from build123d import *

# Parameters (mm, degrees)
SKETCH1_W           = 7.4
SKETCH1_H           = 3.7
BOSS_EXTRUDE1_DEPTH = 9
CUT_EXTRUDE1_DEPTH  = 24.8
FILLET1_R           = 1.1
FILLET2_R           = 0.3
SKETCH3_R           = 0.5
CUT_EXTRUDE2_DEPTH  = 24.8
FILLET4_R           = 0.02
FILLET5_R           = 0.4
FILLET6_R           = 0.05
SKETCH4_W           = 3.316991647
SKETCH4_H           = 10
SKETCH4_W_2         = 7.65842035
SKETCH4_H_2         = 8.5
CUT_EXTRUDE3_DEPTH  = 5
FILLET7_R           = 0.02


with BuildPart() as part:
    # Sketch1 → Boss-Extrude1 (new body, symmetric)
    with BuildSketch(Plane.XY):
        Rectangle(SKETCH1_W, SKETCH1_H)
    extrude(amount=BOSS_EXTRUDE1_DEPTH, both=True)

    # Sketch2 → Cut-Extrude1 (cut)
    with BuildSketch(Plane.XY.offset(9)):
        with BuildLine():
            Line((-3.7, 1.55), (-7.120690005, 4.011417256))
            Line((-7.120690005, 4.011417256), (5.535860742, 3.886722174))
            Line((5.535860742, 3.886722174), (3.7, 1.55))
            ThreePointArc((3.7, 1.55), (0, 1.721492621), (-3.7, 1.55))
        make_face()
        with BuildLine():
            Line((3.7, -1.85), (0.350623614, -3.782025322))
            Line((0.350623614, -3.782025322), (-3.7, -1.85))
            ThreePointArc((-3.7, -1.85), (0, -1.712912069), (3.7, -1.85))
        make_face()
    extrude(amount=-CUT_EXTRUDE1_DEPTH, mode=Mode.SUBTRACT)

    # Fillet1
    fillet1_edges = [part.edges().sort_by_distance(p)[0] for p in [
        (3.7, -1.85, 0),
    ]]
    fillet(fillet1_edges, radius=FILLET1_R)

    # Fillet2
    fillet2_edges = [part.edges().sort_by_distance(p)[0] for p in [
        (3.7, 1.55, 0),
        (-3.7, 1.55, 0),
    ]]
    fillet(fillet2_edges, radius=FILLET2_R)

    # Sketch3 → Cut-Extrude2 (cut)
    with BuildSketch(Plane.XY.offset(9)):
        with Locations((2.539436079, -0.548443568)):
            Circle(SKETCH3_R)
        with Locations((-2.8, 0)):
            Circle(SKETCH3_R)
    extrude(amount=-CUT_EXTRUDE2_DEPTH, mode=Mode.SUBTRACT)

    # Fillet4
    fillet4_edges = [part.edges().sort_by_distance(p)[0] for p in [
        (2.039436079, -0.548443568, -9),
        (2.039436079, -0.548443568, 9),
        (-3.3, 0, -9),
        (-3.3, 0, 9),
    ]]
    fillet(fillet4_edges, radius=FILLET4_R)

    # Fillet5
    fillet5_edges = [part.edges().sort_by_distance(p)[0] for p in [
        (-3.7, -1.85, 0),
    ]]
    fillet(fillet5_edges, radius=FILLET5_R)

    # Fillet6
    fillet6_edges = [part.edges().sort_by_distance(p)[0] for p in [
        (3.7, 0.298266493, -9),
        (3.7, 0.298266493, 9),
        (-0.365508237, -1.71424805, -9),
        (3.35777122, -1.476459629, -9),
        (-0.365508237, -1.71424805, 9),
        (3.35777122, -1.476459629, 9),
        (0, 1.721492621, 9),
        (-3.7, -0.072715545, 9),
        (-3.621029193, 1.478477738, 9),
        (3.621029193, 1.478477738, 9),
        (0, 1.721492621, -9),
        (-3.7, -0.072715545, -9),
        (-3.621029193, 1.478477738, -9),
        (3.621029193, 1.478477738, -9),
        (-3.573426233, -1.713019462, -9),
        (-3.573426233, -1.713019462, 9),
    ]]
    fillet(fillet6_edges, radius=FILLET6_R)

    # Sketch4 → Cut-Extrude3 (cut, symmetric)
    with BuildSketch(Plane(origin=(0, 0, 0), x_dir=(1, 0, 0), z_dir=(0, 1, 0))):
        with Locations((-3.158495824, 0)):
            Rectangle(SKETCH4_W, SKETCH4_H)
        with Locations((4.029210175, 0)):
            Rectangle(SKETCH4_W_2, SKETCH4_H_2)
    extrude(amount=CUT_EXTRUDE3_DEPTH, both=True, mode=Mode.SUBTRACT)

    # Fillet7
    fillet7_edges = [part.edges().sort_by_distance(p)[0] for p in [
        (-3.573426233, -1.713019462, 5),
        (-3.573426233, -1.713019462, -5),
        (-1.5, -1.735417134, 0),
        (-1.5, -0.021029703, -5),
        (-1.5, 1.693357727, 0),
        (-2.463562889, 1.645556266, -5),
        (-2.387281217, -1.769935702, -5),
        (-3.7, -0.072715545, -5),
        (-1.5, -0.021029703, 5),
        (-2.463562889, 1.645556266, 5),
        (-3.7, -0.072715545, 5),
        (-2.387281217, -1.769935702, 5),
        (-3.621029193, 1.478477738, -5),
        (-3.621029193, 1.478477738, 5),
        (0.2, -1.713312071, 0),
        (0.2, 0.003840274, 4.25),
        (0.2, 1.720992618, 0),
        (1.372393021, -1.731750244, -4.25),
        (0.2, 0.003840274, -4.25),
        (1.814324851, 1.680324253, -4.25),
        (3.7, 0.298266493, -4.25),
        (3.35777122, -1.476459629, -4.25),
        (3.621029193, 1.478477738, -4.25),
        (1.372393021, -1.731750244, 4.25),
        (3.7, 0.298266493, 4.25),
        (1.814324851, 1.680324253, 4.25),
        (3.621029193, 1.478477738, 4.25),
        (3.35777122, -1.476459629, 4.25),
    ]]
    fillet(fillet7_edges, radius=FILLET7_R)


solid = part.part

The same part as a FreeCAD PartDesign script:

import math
import FreeCAD as App
import Part
import Sketcher

V = App.Vector


def edges_at(feature, points):
    """Names of the edges that pass closest to the given points."""
    edges = feature.Shape.Edges
    near = lambda p: min(range(len(edges)), key=lambda i: edges[i].distToShape(Part.Vertex(*p))[0])
    return sorted({f"Edge{near(p) + 1}" for p in points})


def add_polygon(sketch, points):
    """Adds a closed chain of lines whose ends are joined by coincident constraints."""
    first, n = sketch.GeometryCount, len(points)
    for a, b in zip(points, points[1:] + points[:1]):
        sketch.addGeometry(Part.LineSegment(App.Vector(*a, 0), App.Vector(*b, 0)), False)
    for i in range(n):
        sketch.addConstraint(Sketcher.Constraint("Coincident", first + i, 2, first + (i + 1) % n, 1))

doc = App.newDocument("Part")
body = doc.addObject("PartDesign::Body", "Body")

# Sketch on XY plane
sketch1 = doc.addObject("Sketcher::SketchObject", "Sketch")
body.addObject(sketch1)
sketch1.AttachmentSupport = (doc.XY_Plane, [""])
sketch1.MapMode = "FlatFace"
add_polygon(sketch1, [(-3.7, 1.9), (-3.7, -1.9), (3.7, -1.9), (3.7, 1.9)])  # lines 0-3
sketch1.addConstraint([
    Sketcher.Constraint("Vertical", 0),
    Sketcher.Constraint("Horizontal", 1),
    Sketcher.Constraint("Vertical", 2),
    Sketcher.Constraint("Horizontal", 3),
    Sketcher.Constraint("Symmetric", 0, 2, 2, 2, -1, 1),
    Sketcher.Constraint("DistanceX", 1, 1, 1, 2, 7.4),
    Sketcher.Constraint("DistanceY", 0, 2, 0, 1, 3.7),
])
pad1 = doc.addObject("PartDesign::Pad", "Pad")
body.addObject(pad1)
pad1.Profile = sketch1
pad1.Length = 18
pad1.Midplane = True

# Sketch on XY plane
sketch2 = doc.addObject("Sketcher::SketchObject", "Sketch001")
body.addObject(sketch2)
sketch2.AttachmentSupport = (doc.XY_Plane, [""])
sketch2.MapMode = "FlatFace"
sketch2.AttachmentOffset = App.Placement(V(0, 0, 9), App.Rotation())
sketch2.addGeometry([
    Part.LineSegment(V(-7.1, 4, 0), V(-3.7, 1.6, 0)),  # 0
    Part.ArcOfCircle(Part.Circle(V(0, -38.3, 0), V(0, 0, 1), 40), math.radians(84.69), math.radians(95.31)),  # 1
    Part.LineSegment(V(3.7, 1.6, 0), V(5.5, 3.9, 0)),  # 2
    Part.LineSegment(V(5.5, 3.9, 0), V(-7.1, 4, 0)),  # 3
    Part.LineSegment(V(0.4, -3.8, 0), V(3.7, -1.9, 0)),  # 4
    Part.ArcOfCircle(Part.Circle(V(0, -51.7, 0), V(0, 0, 1), 50), math.radians(85.76), math.radians(94.24)),  # 5
    Part.LineSegment(V(-3.7, -1.9, 0), V(0.4, -3.8, 0)),  # 6
], False)
sketch2.addConstraint([
    Sketcher.Constraint("Coincident", 0, 2, 1, 2),
    Sketcher.Constraint("Coincident", 1, 1, 2, 1),
    Sketcher.Constraint("Coincident", 2, 2, 3, 1),
    Sketcher.Constraint("Coincident", 3, 2, 0, 1),
    Sketcher.Constraint("Coincident", 4, 2, 5, 1),
    Sketcher.Constraint("Coincident", 5, 2, 6, 1),
    Sketcher.Constraint("Coincident", 6, 2, 4, 1),
    Sketcher.Constraint("Symmetric", 0, 2, 1, 1, -2),
    Sketcher.Constraint("Symmetric", 4, 2, 5, 2, -2),
    Sketcher.Constraint("Vertical", 1, 1, 4, 2),
    Sketcher.Constraint("Radius", 1, 40.0),
    Sketcher.Constraint("Radius", 5, 50.0),
    Sketcher.Constraint("DistanceX", 0, 2, -1, 1, 3.7),
    Sketcher.Constraint("DistanceY", 4, 2, 1, 1, 3.4),
    Sketcher.Constraint("DistanceY", -1, 1, 0, 2, 1.55),
    Sketcher.Constraint("Distance", 2, 2.971642),
    Sketcher.Constraint("Distance", 6, 4.487792),
    Sketcher.Constraint("DistanceX", -1, 1, 2, 2, 5.535861),
    Sketcher.Constraint("DistanceX", 3, 2, -1, 1, 7.12069),
    Sketcher.Constraint("DistanceY", 5, 3, 3, 2, 55.724329),
    Sketcher.Constraint("Distance", 4, 3.866658),
])
pocket1 = doc.addObject("PartDesign::Pocket", "Pocket")
body.addObject(pocket1)
pocket1.Profile = sketch2
pocket1.Length = 24.8
doc.recompute()

fillet = doc.addObject("PartDesign::Fillet", "Fillet")
body.addObject(fillet)
fillet.Base = (pocket1, edges_at(pocket1, [(3.7, -1.85, 0)]))
fillet.Radius = 1.1
doc.recompute()

fillet2 = doc.addObject("PartDesign::Fillet", "Fillet001")
body.addObject(fillet2)
fillet2.Base = (fillet, edges_at(fillet, [(3.7, 1.55, 0), (-3.7, 1.55, 0)]))
fillet2.Radius = 0.3

# Sketch on XY plane
sketch3 = doc.addObject("Sketcher::SketchObject", "Sketch002")
body.addObject(sketch3)
sketch3.AttachmentSupport = (doc.XY_Plane, [""])
sketch3.MapMode = "FlatFace"
sketch3.AttachmentOffset = App.Placement(V(0, 0, 9), App.Rotation())
sketch3.addGeometry([
    Part.Circle(V(2.5, -0.5, 0), V(0, 0, 1), 0.5),
    Part.Circle(V(-2.8, 0, 0), V(0, 0, 1), 0.5),
], False)
sketch3.addConstraint([
    Sketcher.Constraint("Equal", 0, 1),
    Sketcher.Constraint("PointOnObject", 1, 3, -1),
    Sketcher.Constraint("Diameter", 0, 1.0),
    Sketcher.Constraint("DistanceX", 1, 3, -1, 1, 2.8),
    Sketcher.Constraint("DistanceX", -1, 1, 0, 3, 2.539436),
    Sketcher.Constraint("DistanceY", 0, 3, -1, 1, 0.548444),
])
pocket2 = doc.addObject("PartDesign::Pocket", "Pocket001")
body.addObject(pocket2)
pocket2.Profile = sketch3
pocket2.Length = 24.8
doc.recompute()

fillet3 = doc.addObject("PartDesign::Fillet", "Fillet002")
body.addObject(fillet3)
fillet3.Base = (pocket2, edges_at(pocket2, [
    (2.039, -0.548, -9),
    (2.039, -0.548, 9),
    (-3.3, 0, -9),
    (-3.3, 0, 9),
]))
fillet3.Radius = 0.02
doc.recompute()

fillet4 = doc.addObject("PartDesign::Fillet", "Fillet003")
body.addObject(fillet4)
fillet4.Base = (fillet3, edges_at(fillet3, [(-3.7, -1.85, 0)]))
fillet4.Radius = 0.4
doc.recompute()

fillet5 = doc.addObject("PartDesign::Fillet", "Fillet004")
body.addObject(fillet5)
fillet5.Base = (fillet4, edges_at(fillet4, [
    (3.7, 0.298, -9),
    (3.7, 0.298, 9),
    (-0.366, -1.714, -9),
    (3.358, -1.476, -9),
    (-0.366, -1.714, 9),
    (3.358, -1.476, 9),
    (0, 1.721, 9),
    (-3.7, -0.073, 9),
    (-3.621, 1.478, 9),
    (3.621, 1.478, 9),
    (0, 1.721, -9),
    (-3.7, -0.073, -9),
    (-3.621, 1.478, -9),
    (3.621, 1.478, -9),
    (-3.573, -1.713, -9),
    (-3.573, -1.713, 9),
]))
fillet5.Radius = 0.05

# Sketch on XZ plane
sketch4 = doc.addObject("Sketcher::SketchObject", "Sketch003")
body.addObject(sketch4)
sketch4.AttachmentSupport = (doc.XZ_Plane, [""])
sketch4.MapMode = "FlatFace"
add_polygon(sketch4, [(-4.8, -5), (-4.8, 5), (-1.5, 5), (-1.5, -5)])  # lines 0-3
add_polygon(sketch4, [(0.2, -4.2), (0.2, 4.2), (7.9, 4.2), (7.9, -4.2)])  # lines 4-7
sketch4.addConstraint([
    Sketcher.Constraint("Vertical", 0),
    Sketcher.Constraint("Horizontal", 1),
    Sketcher.Constraint("Vertical", 2),
    Sketcher.Constraint("Horizontal", 3),
    Sketcher.Constraint("Vertical", 4),
    Sketcher.Constraint("Horizontal", 5),
    Sketcher.Constraint("Vertical", 6),
    Sketcher.Constraint("Horizontal", 7),
    Sketcher.Constraint("DistanceY", 0, 1, 0, 2, 10.0),
    Sketcher.Constraint("DistanceY", 4, 1, 4, 2, 8.5),
    Sketcher.Constraint("DistanceY", -1, 1, 0, 2, 5.0),
    Sketcher.Constraint("DistanceX", 1, 2, -1, 1, 1.5),
    Sketcher.Constraint("DistanceX", -1, 1, 4, 2, 0.2),
    Sketcher.Constraint("DistanceY", -1, 1, 4, 2, 4.25),
    Sketcher.Constraint("DistanceX", 1, 1, 1, 2, 3.316992),
    Sketcher.Constraint("DistanceX", 5, 1, 5, 2, 7.65842),
])
pocket3 = doc.addObject("PartDesign::Pocket", "Pocket002")
body.addObject(pocket3)
pocket3.Profile = sketch4
pocket3.Length = 10
pocket3.Midplane = True
doc.recompute()

fillet6 = doc.addObject("PartDesign::Fillet", "Fillet005")
body.addObject(fillet6)
fillet6.Base = (pocket3, edges_at(pocket3, [
    (-3.573, -1.713, 5),
    (-3.573, -1.713, -5),
    (-1.5, -1.735, 0),
    (-1.5, -0.021, -5),
    (-1.5, 1.693, 0),
    (-2.464, 1.646, -5),
    (-2.387, -1.77, -5),
    (-3.7, -0.073, -5),
    (-1.5, -0.021, 5),
    (-2.464, 1.646, 5),
    (-3.7, -0.073, 5),
    (-2.387, -1.77, 5),
    (-3.621, 1.478, -5),
    (-3.621, 1.478, 5),
    (0.2, -1.713, 0),
    (0.2, 0.004, 4.25),
    (0.2, 1.721, 0),
    (1.372, -1.732, -4.25),
    (0.2, 0.004, -4.25),
    (1.814, 1.68, -4.25),
    (3.7, 0.298, -4.25),
    (3.358, -1.476, -4.25),
    (3.621, 1.478, -4.25),
    (1.372, -1.732, 4.25),
    (3.7, 0.298, 4.25),
    (1.814, 1.68, 4.25),
    (3.621, 1.478, 4.25),
    (3.358, -1.476, 4.25),
]))
fillet6.Radius = 0.02

doc.recompute()
